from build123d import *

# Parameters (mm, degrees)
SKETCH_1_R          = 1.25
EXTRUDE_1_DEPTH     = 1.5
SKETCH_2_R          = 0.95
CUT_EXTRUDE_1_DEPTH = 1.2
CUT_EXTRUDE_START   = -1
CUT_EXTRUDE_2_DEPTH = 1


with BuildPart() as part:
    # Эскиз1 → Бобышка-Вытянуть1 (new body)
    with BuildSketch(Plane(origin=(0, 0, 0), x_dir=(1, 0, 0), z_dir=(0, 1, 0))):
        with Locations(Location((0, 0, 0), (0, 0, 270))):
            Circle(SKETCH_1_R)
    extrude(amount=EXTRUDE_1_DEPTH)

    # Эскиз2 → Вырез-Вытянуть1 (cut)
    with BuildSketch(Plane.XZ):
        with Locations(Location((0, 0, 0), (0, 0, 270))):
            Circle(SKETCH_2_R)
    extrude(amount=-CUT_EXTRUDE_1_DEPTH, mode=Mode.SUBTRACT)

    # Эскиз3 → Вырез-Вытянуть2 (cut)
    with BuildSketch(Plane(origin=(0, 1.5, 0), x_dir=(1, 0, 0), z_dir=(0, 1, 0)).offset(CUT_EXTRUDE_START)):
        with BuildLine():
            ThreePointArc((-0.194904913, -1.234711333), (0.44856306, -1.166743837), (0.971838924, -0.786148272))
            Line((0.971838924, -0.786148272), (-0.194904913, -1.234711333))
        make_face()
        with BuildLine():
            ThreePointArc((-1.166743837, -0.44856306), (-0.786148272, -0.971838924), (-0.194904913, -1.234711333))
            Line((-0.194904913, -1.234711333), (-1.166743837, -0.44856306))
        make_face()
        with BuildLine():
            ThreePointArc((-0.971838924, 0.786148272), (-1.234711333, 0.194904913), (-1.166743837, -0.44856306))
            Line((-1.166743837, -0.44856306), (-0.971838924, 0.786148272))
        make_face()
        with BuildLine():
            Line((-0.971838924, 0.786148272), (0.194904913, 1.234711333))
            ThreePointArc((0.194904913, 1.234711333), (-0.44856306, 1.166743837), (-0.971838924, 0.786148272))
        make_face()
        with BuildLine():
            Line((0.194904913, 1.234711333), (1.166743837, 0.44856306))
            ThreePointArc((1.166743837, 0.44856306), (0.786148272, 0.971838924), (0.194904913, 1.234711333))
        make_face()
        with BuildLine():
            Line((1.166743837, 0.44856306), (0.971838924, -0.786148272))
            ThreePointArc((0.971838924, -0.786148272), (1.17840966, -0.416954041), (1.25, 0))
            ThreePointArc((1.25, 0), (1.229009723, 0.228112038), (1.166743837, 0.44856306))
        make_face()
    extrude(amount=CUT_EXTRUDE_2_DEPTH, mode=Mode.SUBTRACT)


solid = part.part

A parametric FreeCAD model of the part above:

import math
import FreeCAD as App
import Part
import Sketcher

V = App.Vector
Q = App.Units.Quantity

doc = App.newDocument("Part")
body = doc.addObject("PartDesign::Body", "Body")

# Sketch on XZ plane
sketch1 = doc.addObject("Sketcher::SketchObject", "Sketch")
body.addObject(sketch1)
sketch1.AttachmentSupport = (doc.XZ_Plane, [""])
sketch1.MapMode = "FlatFace"
sketch1.addGeometry(Part.Circle(V(0, 0, 0), V(0, 0, 1), 1.2), False)
sketch1.addConstraint([
    Sketcher.Constraint("Coincident", 0, 3, -1, 1),
    Sketcher.Constraint("Diameter", 0, Q("2.5 mm")),
])
pad1 = doc.addObject("PartDesign::Pad", "Pad")
body.addObject(pad1)
pad1.Profile = sketch1
pad1.Length = 1.5
pad1.Reversed = True

# Sketch on XZ plane
sketch2 = doc.addObject("Sketcher::SketchObject", "Sketch001")
body.addObject(sketch2)
sketch2.AttachmentSupport = (doc.XZ_Plane, [""])
sketch2.MapMode = "FlatFace"
sketch2.addGeometry(Part.Circle(V(0, 0, 0), V(0, 0, 1), 0.9), False)
sketch2.addConstraint([
    Sketcher.Constraint("Coincident", 0, 3, -1, 1),
    Sketcher.Constraint("Diameter", 0, Q("1.9 mm")),
])
pocket1 = doc.addObject("PartDesign::Pocket", "Pocket")
body.addObject(pocket1)
pocket1.Profile = sketch2
pocket1.Length = 1.2

# Sketch on XZ plane
sketch3 = doc.addObject("Sketcher::SketchObject", "Sketch002")
body.addObject(sketch3)
sketch3.AttachmentSupport = (doc.XZ_Plane, [""])
sketch3.MapMode = "FlatFace"
sketch3.AttachmentOffset = App.Placement(V(0, 0, -0.5), App.Rotation())
sketch3.addGeometry([
    Part.ArcOfCircle(Part.Circle(V(0, 0, 0), V(0, 0, 1), 1.25), math.radians(39), math.radians(99)),  # 0
    Part.LineSegment(V(0.97, 0.79, 0), V(-0.19, 1.23, 0)),  # 1
    Part.ArcOfCircle(Part.Circle(V(0, 0, 0), V(0, 0, 1), 1.25), math.radians(99), math.radians(159)),  # 2
    Part.LineSegment(V(-0.19, 1.23, 0), V(-1.17, 0.45, 0)),  # 3
    Part.ArcOfCircle(Part.Circle(V(0, 0, 0), V(0, 0, 1), 1.25), math.radians(159), math.radians(219)),  # 4
    Part.LineSegment(V(-1.17, 0.45, 0), V(-0.97, -0.79, 0)),  # 5
    Part.LineSegment(V(-0.97, -0.79, 0), V(0.19, -1.23, 0)),  # 6
    Part.ArcOfCircle(Part.Circle(V(0, 0, 0), V(0, 0, 1), 1.25), math.radians(-141), math.radians(-81)),  # 7
    Part.LineSegment(V(0.19, -1.23, 0), V(1.17, -0.45, 0)),  # 8
    Part.ArcOfCircle(Part.Circle(V(0, 0, 0), V(0, 0, 1), 1.25), math.radians(-81), math.radians(-21)),  # 9
    Part.LineSegment(V(1.17, -0.45, 0), V(0.97, 0.79, 0)),  # 10
    Part.ArcOfCircle(Part.Circle(V(0, 0, 0), V(0, 0, 1), 1.25), math.radians(0), math.radians(39)),  # 11
    Part.ArcOfCircle(Part.Circle(V(0, 0, 0), V(0, 0, 1), 1.25), math.radians(-21), math.radians(0)),  # 12
], False)
sketch3.addConstraint([
    Sketcher.Constraint("Coincident", 0, 1, 1, 1),
    Sketcher.Constraint("Coincident", 1, 2, 0, 2),
    Sketcher.Constraint("Coincident", 2, 1, 3, 1),
    Sketcher.Constraint("Coincident", 3, 2, 2, 2),
    Sketcher.Constraint("Coincident", 4, 1, 5, 1),
    Sketcher.Constraint("Coincident", 5, 2, 4, 2),
    Sketcher.Constraint("Coincident", 6, 1, 7, 1),
    Sketcher.Constraint("Coincident", 7, 2, 6, 2),
    Sketcher.Constraint("Coincident", 8, 1, 9, 1),
    Sketcher.Constraint("Coincident", 9, 2, 8, 2),
    Sketcher.Constraint("Coincident", 10, 2, 11, 2),
    Sketcher.Constraint("Tangent", 11, 1, 12, 2),
    Sketcher.Constraint("Coincident", 12, 1, 10, 1),
    Sketcher.Constraint("Coincident", 0, 3, -1, 1),
    Sketcher.Constraint("Coincident", 2, 3, -1, 1),
    Sketcher.Constraint("Coincident", 4, 3, -1, 1),
    Sketcher.Constraint("Coincident", 7, 3, -1, 1),
    Sketcher.Constraint("Coincident", 9, 3, -1, 1),
    Sketcher.Constraint("Coincident", 11, 3, -1, 1),
    Sketcher.Constraint("Coincident", 2, 1, 1, 2),
    Sketcher.Constraint("Coincident", 4, 1, 3, 2),
    Sketcher.Constraint("Coincident", 6, 1, 5, 2),
    Sketcher.Constraint("Coincident", 8, 1, 7, 2),
    Sketcher.Constraint("Coincident", 10, 2, 0, 1),
    Sketcher.Constraint("Coincident", 12, 1, 9, 2),
    Sketcher.Constraint("PointOnObject", 11, 1, -1),
    Sketcher.Constraint("Parallel", 1, 6),
    Sketcher.Constraint("Parallel", 3, 8),
    Sketcher.Constraint("Equal", 1, 3),
    Sketcher.Constraint("Equal", 3, 5),
    Sketcher.Constraint("Equal", 5, 6),
    Sketcher.Constraint("Radius", 0, Q("1.25 mm")),
    Sketcher.Constraint("DistanceX", -1, 1, 0, 1, Q("0.971839 mm")),
])
pocket2 = doc.addObject("PartDesign::Pocket", "Pocket001")
body.addObject(pocket2)
pocket2.Profile = sketch3
pocket2.Length = 1

doc.recompute()
